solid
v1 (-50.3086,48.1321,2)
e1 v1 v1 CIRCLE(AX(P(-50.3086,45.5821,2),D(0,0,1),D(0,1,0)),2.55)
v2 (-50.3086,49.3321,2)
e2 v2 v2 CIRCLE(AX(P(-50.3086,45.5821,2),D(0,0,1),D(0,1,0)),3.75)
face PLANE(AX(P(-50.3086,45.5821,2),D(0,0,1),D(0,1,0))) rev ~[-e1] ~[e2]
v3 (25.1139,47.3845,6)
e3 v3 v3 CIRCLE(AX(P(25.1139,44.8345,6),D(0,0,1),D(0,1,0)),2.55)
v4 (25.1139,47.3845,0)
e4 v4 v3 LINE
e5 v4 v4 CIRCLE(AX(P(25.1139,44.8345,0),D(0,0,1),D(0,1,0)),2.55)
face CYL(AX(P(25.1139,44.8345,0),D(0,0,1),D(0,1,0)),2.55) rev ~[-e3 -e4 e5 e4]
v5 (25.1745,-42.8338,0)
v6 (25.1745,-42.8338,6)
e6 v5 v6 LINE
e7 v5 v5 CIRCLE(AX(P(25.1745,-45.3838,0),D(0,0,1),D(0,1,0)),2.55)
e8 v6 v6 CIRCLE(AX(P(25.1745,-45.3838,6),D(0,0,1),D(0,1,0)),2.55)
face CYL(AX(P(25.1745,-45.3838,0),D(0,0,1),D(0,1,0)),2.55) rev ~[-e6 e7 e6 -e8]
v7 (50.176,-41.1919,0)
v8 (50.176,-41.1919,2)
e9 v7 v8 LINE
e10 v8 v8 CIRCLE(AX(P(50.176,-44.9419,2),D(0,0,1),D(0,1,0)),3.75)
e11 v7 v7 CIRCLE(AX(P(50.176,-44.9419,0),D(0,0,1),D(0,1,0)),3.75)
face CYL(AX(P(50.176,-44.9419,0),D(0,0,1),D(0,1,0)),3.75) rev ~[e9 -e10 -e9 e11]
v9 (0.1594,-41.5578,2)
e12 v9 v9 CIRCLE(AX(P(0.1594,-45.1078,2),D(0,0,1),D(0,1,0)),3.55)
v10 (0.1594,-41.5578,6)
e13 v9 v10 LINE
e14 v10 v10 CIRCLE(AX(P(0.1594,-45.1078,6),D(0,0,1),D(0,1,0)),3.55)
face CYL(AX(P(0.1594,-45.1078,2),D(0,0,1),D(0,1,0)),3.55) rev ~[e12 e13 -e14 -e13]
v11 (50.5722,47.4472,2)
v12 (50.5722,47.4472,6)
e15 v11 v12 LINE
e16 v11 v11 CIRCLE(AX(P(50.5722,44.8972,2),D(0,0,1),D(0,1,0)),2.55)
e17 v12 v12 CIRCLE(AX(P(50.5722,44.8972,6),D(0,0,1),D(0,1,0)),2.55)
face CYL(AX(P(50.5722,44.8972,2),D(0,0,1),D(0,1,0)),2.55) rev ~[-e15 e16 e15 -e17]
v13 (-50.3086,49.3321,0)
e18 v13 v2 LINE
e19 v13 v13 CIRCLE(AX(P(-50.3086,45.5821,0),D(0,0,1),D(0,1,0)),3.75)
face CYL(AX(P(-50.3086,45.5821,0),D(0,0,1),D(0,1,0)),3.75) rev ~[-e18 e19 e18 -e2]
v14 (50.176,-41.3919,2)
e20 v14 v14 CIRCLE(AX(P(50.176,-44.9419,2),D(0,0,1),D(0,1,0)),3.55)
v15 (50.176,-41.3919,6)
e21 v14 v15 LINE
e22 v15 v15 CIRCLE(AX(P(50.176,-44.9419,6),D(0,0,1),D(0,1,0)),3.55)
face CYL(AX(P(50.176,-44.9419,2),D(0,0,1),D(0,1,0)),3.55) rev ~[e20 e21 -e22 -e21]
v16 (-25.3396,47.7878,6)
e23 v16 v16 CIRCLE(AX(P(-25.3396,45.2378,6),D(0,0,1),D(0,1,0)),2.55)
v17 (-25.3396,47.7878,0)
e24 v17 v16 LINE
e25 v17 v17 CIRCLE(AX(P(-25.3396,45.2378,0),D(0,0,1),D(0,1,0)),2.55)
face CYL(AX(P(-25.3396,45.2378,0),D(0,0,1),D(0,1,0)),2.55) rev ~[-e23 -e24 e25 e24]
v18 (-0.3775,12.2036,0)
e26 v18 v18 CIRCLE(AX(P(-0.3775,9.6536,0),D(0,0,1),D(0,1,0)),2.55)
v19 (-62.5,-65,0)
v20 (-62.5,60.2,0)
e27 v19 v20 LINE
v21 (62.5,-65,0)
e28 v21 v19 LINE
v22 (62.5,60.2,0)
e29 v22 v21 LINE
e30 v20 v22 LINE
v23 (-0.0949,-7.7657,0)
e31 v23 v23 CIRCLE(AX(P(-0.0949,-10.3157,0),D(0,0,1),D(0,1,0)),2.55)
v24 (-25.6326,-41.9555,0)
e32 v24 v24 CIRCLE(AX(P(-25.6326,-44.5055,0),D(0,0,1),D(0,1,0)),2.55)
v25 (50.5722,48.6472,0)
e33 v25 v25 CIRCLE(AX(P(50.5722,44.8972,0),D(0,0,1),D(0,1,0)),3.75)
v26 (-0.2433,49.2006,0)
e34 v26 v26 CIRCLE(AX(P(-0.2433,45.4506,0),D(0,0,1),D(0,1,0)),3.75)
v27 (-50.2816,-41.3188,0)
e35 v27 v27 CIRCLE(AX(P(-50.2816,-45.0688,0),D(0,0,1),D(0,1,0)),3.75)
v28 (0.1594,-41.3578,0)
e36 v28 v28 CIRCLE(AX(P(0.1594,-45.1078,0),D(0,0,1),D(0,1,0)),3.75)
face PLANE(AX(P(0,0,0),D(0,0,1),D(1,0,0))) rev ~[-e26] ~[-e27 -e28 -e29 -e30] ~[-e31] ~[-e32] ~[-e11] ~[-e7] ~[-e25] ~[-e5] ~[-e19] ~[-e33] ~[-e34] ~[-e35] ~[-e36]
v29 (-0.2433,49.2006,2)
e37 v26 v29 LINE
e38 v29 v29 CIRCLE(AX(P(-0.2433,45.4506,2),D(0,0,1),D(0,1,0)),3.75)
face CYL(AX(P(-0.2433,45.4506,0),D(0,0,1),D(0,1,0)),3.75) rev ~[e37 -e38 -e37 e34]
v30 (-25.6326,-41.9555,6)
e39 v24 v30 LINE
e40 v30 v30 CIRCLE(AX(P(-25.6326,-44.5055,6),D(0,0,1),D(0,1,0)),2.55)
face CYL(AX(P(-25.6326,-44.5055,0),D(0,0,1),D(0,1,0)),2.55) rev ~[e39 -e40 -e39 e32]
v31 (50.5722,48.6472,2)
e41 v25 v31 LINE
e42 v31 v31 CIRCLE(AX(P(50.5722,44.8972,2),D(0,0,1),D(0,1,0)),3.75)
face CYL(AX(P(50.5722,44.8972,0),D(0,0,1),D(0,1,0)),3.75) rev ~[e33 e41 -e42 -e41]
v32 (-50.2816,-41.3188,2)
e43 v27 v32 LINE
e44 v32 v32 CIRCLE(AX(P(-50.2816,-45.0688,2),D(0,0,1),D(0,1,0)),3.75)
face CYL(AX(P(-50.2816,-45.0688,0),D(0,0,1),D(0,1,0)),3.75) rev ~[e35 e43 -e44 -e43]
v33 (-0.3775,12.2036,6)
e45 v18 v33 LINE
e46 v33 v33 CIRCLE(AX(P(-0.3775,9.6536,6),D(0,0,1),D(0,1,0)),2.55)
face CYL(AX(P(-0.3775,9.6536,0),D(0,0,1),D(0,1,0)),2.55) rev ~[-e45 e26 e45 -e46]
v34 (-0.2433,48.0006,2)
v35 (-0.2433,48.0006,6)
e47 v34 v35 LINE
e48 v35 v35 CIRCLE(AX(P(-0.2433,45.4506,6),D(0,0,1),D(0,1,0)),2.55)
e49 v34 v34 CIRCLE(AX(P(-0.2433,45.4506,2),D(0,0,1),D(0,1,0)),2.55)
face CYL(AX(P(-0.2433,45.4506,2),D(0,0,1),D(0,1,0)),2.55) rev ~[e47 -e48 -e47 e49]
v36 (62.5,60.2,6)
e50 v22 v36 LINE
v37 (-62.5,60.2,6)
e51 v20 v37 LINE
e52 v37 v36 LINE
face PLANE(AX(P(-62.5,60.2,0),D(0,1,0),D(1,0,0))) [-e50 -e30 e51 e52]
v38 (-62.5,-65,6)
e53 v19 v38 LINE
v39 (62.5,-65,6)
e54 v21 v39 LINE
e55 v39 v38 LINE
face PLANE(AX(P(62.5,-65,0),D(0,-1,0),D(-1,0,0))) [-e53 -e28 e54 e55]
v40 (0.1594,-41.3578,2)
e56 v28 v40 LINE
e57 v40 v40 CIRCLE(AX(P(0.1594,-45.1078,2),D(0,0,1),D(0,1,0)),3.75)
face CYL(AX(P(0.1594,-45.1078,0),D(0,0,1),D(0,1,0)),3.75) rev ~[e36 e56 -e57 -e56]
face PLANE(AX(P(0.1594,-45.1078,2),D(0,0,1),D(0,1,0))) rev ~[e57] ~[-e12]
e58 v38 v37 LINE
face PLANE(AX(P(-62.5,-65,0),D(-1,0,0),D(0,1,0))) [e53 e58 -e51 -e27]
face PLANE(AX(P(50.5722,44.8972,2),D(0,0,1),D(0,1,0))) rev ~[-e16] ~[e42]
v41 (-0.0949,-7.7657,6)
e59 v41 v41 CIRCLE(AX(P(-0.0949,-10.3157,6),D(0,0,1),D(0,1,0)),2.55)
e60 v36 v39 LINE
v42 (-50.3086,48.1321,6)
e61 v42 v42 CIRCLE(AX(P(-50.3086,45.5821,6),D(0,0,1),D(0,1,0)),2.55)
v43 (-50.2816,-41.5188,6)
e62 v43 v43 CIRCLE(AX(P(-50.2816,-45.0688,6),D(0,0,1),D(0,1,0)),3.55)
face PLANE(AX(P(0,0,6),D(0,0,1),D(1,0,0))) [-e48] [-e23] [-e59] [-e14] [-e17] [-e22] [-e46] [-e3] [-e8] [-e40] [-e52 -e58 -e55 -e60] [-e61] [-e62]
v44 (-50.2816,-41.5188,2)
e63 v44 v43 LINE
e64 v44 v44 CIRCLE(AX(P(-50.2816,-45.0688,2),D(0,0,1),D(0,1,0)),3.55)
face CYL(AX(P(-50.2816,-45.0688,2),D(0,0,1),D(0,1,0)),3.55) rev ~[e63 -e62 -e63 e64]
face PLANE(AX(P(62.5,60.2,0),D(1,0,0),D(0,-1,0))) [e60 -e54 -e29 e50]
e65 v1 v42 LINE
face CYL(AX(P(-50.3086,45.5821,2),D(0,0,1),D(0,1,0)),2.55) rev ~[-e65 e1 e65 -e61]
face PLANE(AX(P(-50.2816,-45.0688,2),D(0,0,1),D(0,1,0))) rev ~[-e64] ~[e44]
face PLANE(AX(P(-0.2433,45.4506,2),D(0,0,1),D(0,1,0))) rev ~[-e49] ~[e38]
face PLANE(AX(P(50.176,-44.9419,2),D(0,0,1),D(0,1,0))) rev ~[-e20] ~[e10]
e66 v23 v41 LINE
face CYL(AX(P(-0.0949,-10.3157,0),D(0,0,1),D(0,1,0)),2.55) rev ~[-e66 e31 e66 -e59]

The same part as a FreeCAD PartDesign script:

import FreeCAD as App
import Part
import Sketcher

V = App.Vector


def add_polygon(sketch, points):
    """Adds a closed chain of lines whose ends are joined by coincident constraints."""
    first, n = sketch.GeometryCount, len(points)
    for a, b in zip(points, points[1:] + points[:1]):
        sketch.addGeometry(Part.LineSegment(App.Vector(*a, 0), App.Vector(*b, 0)), False)
    for i in range(n):
        sketch.addConstraint(Sketcher.Constraint("Coincident", first + i, 2, first + (i + 1) % n, 1))

doc = App.newDocument("Part")
params = doc.addObject("Spreadsheet::Sheet", "Params")
for row, (alias, value) in enumerate([
    ("sketch1_width", "125 mm"),
    ("sketch1_height", "125.2 mm"),
    ("pad1_length", "6 mm"),
    ("sketch2_diameter", "7.1 mm"),
    ("hole_diameter", "7.1 mm"),
    ("hole_cbore_diameter", "7.5 mm"),
    ("hole_cbore_depth", "2 mm"),
    ("sketch3_diameter", "5.1 mm"),
    ("hole2_diameter", "5.1 mm"),
    ("hole2_cbore_diameter", "7.5 mm"),
    ("hole2_cbore_depth", "2 mm"),
    ("sketch4_diameter", "5.1 mm"),
    ("hole3_diameter", "5.1 mm"),
], start=1):
    params.set(f"A{row}", alias)
    params.set(f"B{row}", "=" + value)
    params.setAlias(f"B{row}", alias)

body = doc.addObject("PartDesign::Body", "Body")

sketch1 = body.newObject("Sketcher::SketchObject", "Sketch")
sketch1.AttachmentSupport = (doc.getObject("XY_Plane"), [""])
sketch1.MapMode = "FlatFace"
add_polygon(sketch1, [(-62.5, 60.2), (-62.5, -65), (62.5, -65), (62.5, 60.2)])
sketch1.addConstraint(Sketcher.Constraint("Vertical", 0))
sketch1.addConstraint(Sketcher.Constraint("Horizontal", 1))
sketch1.addConstraint(Sketcher.Constraint("Vertical", 2))
sketch1.addConstraint(Sketcher.Constraint("Horizontal", 3))
sketch1.addConstraint(Sketcher.Constraint("DistanceX", 1, 1, 1, 2, 125.0))
sketch1.addConstraint(Sketcher.Constraint("DistanceY", 0, 2, 0, 1, 125.2))
sketch1.addConstraint(Sketcher.Constraint("DistanceY", 0, 2, -1, 1, 65.0))
sketch1.addConstraint(Sketcher.Constraint("DistanceX", 0, 2, -1, 1, 62.5))
sketch1.setExpression("Constraints[8]", "Params.sketch1_width")
sketch1.setExpression("Constraints[9]", "Params.sketch1_height")
pad1 = body.newObject("PartDesign::Pad", "Pad")
pad1.Profile = sketch1
pad1.setExpression("Length", "Params.pad1_length")

sketch2 = body.newObject("Sketcher::SketchObject", "Sketch001")
sketch2.AttachmentSupport = (doc.getObject("XY_Plane"), [""])
sketch2.MapMode = "FlatFace"
sketch2.addGeometry(Part.Circle(V(50.176, -44.9419, 0), V(0, 0, 1), 3.55), False)
sketch2.addGeometry(Part.Circle(V(0.1594, -45.1078, 0), V(0, 0, 1), 3.55), False)
sketch2.addGeometry(Part.Circle(V(-50.2816, -45.0688, 0), V(0, 0, 1), 3.55), False)
sketch2.addConstraint(Sketcher.Constraint("Equal", 0, 1))
sketch2.addConstraint(Sketcher.Constraint("Equal", 1, 2))
sketch2.addConstraint(Sketcher.Constraint("Diameter", 0, 7.1))
sketch2.addConstraint(Sketcher.Constraint("DistanceX", -1, 1, 0, 3, 50.176))
sketch2.addConstraint(Sketcher.Constraint("DistanceY", 0, 3, -1, 1, 44.942))
sketch2.addConstraint(Sketcher.Constraint("DistanceY", 1, 3, 0, 3, 0.166))
sketch2.addConstraint(Sketcher.Constraint("DistanceX", 2, 3, 1, 3, 50.441))
sketch2.addConstraint(Sketcher.Constraint("DistanceY", 1, 3, 2, 3, 0.039))
sketch2.addConstraint(Sketcher.Constraint("DistanceX", -1, 1, 1, 3, 0.1594))
sketch2.setExpression("Constraints[2]", "Params.sketch2_diameter")
doc.recompute()
hole = body.newObject("PartDesign::Hole", "Hole")
hole.Profile = sketch2
hole.ThreadType = "None"
hole.setExpression("Diameter", "Params.hole_diameter")
hole.DepthType = "ThroughAll"
hole.HoleCutType = "Counterbore"
hole.setExpression("HoleCutDiameter", "Params.hole_cbore_diameter")
hole.setExpression("HoleCutDepth", "Params.hole_cbore_depth")
hole.Reversed = True

sketch3 = body.newObject("Sketcher::SketchObject", "Sketch002")
sketch3.AttachmentSupport = (doc.getObject("XY_Plane"), [""])
sketch3.MapMode = "FlatFace"
sketch3.addGeometry(Part.Circle(V(-50.3086, 45.5821, 0), V(0, 0, 1), 2.55), False)
sketch3.addGeometry(Part.Circle(V(-0.2433, 45.4506, 0), V(0, 0, 1), 2.55), False)
sketch3.addGeometry(Part.Circle(V(50.5722, 44.8972, 0), V(0, 0, 1), 2.55), False)
sketch3.addConstraint(Sketcher.Constraint("Equal", 0, 1))
sketch3.addConstraint(Sketcher.Constraint("Equal", 1, 2))
sketch3.addConstraint(Sketcher.Constraint("Diameter", 0, 5.1))
sketch3.addConstraint(Sketcher.Constraint("DistanceY", -1, 1, 0, 3, 45.582))
sketch3.addConstraint(Sketcher.Constraint("DistanceY", 2, 3, 0, 3, 0.685))
sketch3.addConstraint(Sketcher.Constraint("DistanceX", 0, 3, -1, 1, 50.3086))
sketch3.addConstraint(Sketcher.Constraint("DistanceX", 1, 3, -1, 1, 0.2433))
sketch3.addConstraint(Sketcher.Constraint("DistanceY", -1, 1, 1, 3, 45.4506))
sketch3.addConstraint(Sketcher.Constraint("DistanceX", -1, 1, 2, 3, 50.5722))
sketch3.setExpression("Constraints[2]", "Params.sketch3_diameter")
doc.recompute()
hole2 = body.newObject("PartDesign::Hole", "Hole001")
hole2.Profile = sketch3
hole2.ThreadType = "None"
hole2.setExpression("Diameter", "Params.hole2_diameter")
hole2.DepthType = "ThroughAll"
hole2.HoleCutType = "Counterbore"
hole2.setExpression("HoleCutDiameter", "Params.hole2_cbore_diameter")
hole2.setExpression("HoleCutDepth", "Params.hole2_cbore_depth")
hole2.Reversed = True

sketch4 = body.newObject("Sketcher::SketchObject", "Sketch003")
sketch4.AttachmentSupport = (doc.getObject("XY_Plane"), [""])
sketch4.MapMode = "FlatFace"
sketch4.addGeometry(Part.Circle(V(25.1139, 44.8345, 0), V(0, 0, 1), 2.55), False)
sketch4.addGeometry(Part.Circle(V(-25.3396, 45.2378, 0), V(0, 0, 1), 2.55), False)
sketch4.addGeometry(Part.Circle(V(25.1745, -45.3838, 0), V(0, 0, 1), 2.55), False)
sketch4.addGeometry(Part.Circle(V(-25.6326, -44.5055, 0), V(0, 0, 1), 2.55), False)
sketch4.addGeometry(Part.Circle(V(-0.0949, -10.3157, 0), V(0, 0, 1), 2.55), False)
sketch4.addGeometry(Part.Circle(V(-0.3775, 9.6536, 0), V(0, 0, 1), 2.55), False)
sketch4.addConstraint(Sketcher.Constraint("Equal", 0, 1))
sketch4.addConstraint(Sketcher.Constraint("Equal", 1, 2))
sketch4.addConstraint(Sketcher.Constraint("Equal", 2, 3))
sketch4.addConstraint(Sketcher.Constraint("Equal", 3, 4))
sketch4.addConstraint(Sketcher.Constraint("Equal", 4, 5))
sketch4.addConstraint(Sketcher.Constraint("Diameter", 0, 5.1))
sketch4.addConstraint(Sketcher.Constraint("DistanceY", 3, 3, 0, 3, 89.34))
sketch4.addConstraint(Sketcher.Constraint("DistanceX", -1, 1, 0, 3, 25.114))
sketch4.addConstraint(Sketcher.Constraint("DistanceX", 4, 3, -1, 1, 0.095))
sketch4.addConstraint(Sketcher.Constraint("DistanceX", 1, 3, 2, 3, 50.514))
sketch4.addConstraint(Sketcher.Constraint("DistanceX", 3, 3, 2, 3, 50.807))
sketch4.addConstraint(Sketcher.Constraint("DistanceY", 2, 3, 4, 3, 35.068))
sketch4.addConstraint(Sketcher.Constraint("DistanceY", 5, 3, 0, 3, 35.181))
sketch4.addConstraint(Sketcher.Constraint("DistanceX", 1, 3, 5, 3, 24.962))
sketch4.addConstraint(Sketcher.Constraint("DistanceY", -1, 1, 0, 3, 44.8345))
sketch4.addConstraint(Sketcher.Constraint("DistanceX", 1, 3, -1, 1, 25.3396))
sketch4.addConstraint(Sketcher.Constraint("DistanceY", -1, 1, 1, 3, 45.2378))
sketch4.addConstraint(Sketcher.Constraint("DistanceY", 2, 3, -1, 1, 45.3838))
sketch4.setExpression("Constraints[5]", "Params.sketch4_diameter")
doc.recompute()
hole3 = body.newObject("PartDesign::Hole", "Hole002")
hole3.Profile = sketch4
hole3.ThreadType = "None"
hole3.setExpression("Diameter", "Params.hole3_diameter")
hole3.DepthType = "ThroughAll"
hole3.Reversed = True

doc.recompute()
